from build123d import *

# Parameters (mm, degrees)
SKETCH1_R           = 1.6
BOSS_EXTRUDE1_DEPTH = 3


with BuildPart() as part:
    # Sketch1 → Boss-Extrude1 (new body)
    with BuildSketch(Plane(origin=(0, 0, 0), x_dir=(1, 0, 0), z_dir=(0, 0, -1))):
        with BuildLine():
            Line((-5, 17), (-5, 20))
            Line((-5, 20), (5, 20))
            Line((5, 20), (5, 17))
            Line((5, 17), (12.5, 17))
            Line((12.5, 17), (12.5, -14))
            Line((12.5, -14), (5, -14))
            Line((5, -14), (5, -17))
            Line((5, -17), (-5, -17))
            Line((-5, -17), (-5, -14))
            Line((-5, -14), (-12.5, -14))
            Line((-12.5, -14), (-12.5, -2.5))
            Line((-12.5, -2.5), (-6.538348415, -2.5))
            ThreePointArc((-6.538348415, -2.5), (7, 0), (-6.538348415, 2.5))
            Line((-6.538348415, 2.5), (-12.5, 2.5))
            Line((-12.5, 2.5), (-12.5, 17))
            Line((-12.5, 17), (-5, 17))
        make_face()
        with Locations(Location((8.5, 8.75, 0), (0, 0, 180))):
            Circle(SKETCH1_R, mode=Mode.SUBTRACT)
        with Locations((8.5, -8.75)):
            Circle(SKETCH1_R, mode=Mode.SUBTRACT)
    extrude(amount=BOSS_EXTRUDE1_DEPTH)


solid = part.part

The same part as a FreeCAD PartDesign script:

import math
import FreeCAD as App
import Part
import Sketcher

V = App.Vector

doc = App.newDocument("Part")
body = doc.addObject("PartDesign::Body", "Body")

# Sketch on XY plane
sketch1 = body.newObject("Sketcher::SketchObject", "Sketch")
sketch1.AttachmentSupport = (doc.getObject("XY_Plane"), [""])
sketch1.MapMode = "FlatFace"
sketch1.addGeometry([
    Part.LineSegment(V(-5, -20, 0), V(-5, -17, 0)),  # 0
    Part.LineSegment(V(-5, -17, 0), V(-12.5, -17, 0)),  # 1
    Part.LineSegment(V(-12.5, -17, 0), V(-12.5, -2.5, 0)),  # 2
    Part.LineSegment(V(-12.5, -2.5, 0), V(-6.538348, -2.5, 0)),  # 3
    Part.ArcOfCircle(Part.Circle(V(0, 0, 0), V(0, 0, 1), 7), math.radians(-159.075168), math.radians(159.075168)),  # 4
    Part.LineSegment(V(-6.538348, 2.5, 0), V(-12.5, 2.5, 0)),  # 5
    Part.LineSegment(V(-12.5, 2.5, 0), V(-12.5, 14, 0)),  # 6
    Part.LineSegment(V(-12.5, 14, 0), V(-5, 14, 0)),  # 7
    Part.LineSegment(V(-5, 14, 0), V(-5, 17, 0)),  # 8
    Part.LineSegment(V(-5, 17, 0), V(5, 17, 0)),  # 9
    Part.LineSegment(V(5, 17, 0), V(5, 14, 0)),  # 10
    Part.LineSegment(V(5, 14, 0), V(12.5, 14, 0)),  # 11
    Part.LineSegment(V(12.5, 14, 0), V(12.5, -17, 0)),  # 12
    Part.LineSegment(V(12.5, -17, 0), V(5, -17, 0)),  # 13
    Part.LineSegment(V(5, -17, 0), V(5, -20, 0)),  # 14
    Part.LineSegment(V(5, -20, 0), V(-5, -20, 0)),  # 15
    Part.Circle(V(8.5, 8.75, 0), V(0, 0, 1), 1.6),  # 16
    Part.Circle(V(8.5, -8.75, 0), V(0, 0, 1), 1.6),  # 17
], False)
sketch1.addConstraint([
    Sketcher.Constraint("Coincident", 0, 2, 1, 1),
    Sketcher.Constraint("Coincident", 1, 2, 2, 1),
    Sketcher.Constraint("Coincident", 2, 2, 3, 1),
    Sketcher.Constraint("Coincident", 3, 2, 4, 1),
    Sketcher.Constraint("Coincident", 4, 2, 5, 1),
    Sketcher.Constraint("Coincident", 5, 2, 6, 1),
    Sketcher.Constraint("Coincident", 6, 2, 7, 1),
    Sketcher.Constraint("Coincident", 7, 2, 8, 1),
    Sketcher.Constraint("Coincident", 8, 2, 9, 1),
    Sketcher.Constraint("Coincident", 9, 2, 10, 1),
    Sketcher.Constraint("Coincident", 10, 2, 11, 1),
    Sketcher.Constraint("Coincident", 11, 2, 12, 1),
    Sketcher.Constraint("Coincident", 12, 2, 13, 1),
    Sketcher.Constraint("Coincident", 13, 2, 14, 1),
    Sketcher.Constraint("Coincident", 14, 2, 15, 1),
    Sketcher.Constraint("Coincident", 15, 2, 0, 1),
    Sketcher.Constraint("Vertical", 0),
    Sketcher.Constraint("Horizontal", 1),
    Sketcher.Constraint("Vertical", 2),
    Sketcher.Constraint("Horizontal", 3),
    Sketcher.Constraint("Horizontal", 5),
    Sketcher.Constraint("Vertical", 6),
    Sketcher.Constraint("Horizontal", 7),
    Sketcher.Constraint("Vertical", 8),
    Sketcher.Constraint("Horizontal", 9),
    Sketcher.Constraint("Vertical", 10),
    Sketcher.Constraint("Horizontal", 11),
    Sketcher.Constraint("Vertical", 12),
    Sketcher.Constraint("Horizontal", 13),
    Sketcher.Constraint("Vertical", 14),
    Sketcher.Constraint("Horizontal", 15),
    Sketcher.Constraint("Coincident", 4, 3, -1, 1),
    Sketcher.Constraint("Equal", 16, 17),
    Sketcher.Constraint("Symmetric", 0, 2, 9, 2, -1, 1),
    Sketcher.Constraint("Symmetric", 8, 2, 13, 2, -1, 1),
    Sketcher.Constraint("Symmetric", 7, 2, 10, 2, -2),
    Sketcher.Constraint("Symmetric", 16, 3, 17, 3, -1),
    Sketcher.Constraint("Symmetric", 2, 2, 5, 2, -1),
    Sketcher.Constraint("Equal", 7, 11),
    Sketcher.Constraint("Equal", 0, 8),
    Sketcher.Constraint("Radius", 4, 7.0),
    Sketcher.Constraint("Diameter", 16, 3.2),
    Sketcher.Constraint("DistanceX", 9, 1, 9, 2, 10.0),
    Sketcher.Constraint("DistanceY", 0, 1, 0, 2, 3.0),
    Sketcher.Constraint("DistanceY", 12, 2, 12, 1, 31.0),
    Sketcher.Constraint("DistanceX", 1, 2, 1, 1, 7.5),
    Sketcher.Constraint("DistanceY", 2, 1, 2, 2, 14.5),
    Sketcher.Constraint("DistanceX", 1, 2, 17, 3, 21.0),
    Sketcher.Constraint("DistanceY", 17, 3, 16, 3, 17.5),
])
pad1 = body.newObject("PartDesign::Pad", "Pad")
pad1.Profile = sketch1
pad1.Length = 3
pad1.Reversed = True

doc.recompute()
